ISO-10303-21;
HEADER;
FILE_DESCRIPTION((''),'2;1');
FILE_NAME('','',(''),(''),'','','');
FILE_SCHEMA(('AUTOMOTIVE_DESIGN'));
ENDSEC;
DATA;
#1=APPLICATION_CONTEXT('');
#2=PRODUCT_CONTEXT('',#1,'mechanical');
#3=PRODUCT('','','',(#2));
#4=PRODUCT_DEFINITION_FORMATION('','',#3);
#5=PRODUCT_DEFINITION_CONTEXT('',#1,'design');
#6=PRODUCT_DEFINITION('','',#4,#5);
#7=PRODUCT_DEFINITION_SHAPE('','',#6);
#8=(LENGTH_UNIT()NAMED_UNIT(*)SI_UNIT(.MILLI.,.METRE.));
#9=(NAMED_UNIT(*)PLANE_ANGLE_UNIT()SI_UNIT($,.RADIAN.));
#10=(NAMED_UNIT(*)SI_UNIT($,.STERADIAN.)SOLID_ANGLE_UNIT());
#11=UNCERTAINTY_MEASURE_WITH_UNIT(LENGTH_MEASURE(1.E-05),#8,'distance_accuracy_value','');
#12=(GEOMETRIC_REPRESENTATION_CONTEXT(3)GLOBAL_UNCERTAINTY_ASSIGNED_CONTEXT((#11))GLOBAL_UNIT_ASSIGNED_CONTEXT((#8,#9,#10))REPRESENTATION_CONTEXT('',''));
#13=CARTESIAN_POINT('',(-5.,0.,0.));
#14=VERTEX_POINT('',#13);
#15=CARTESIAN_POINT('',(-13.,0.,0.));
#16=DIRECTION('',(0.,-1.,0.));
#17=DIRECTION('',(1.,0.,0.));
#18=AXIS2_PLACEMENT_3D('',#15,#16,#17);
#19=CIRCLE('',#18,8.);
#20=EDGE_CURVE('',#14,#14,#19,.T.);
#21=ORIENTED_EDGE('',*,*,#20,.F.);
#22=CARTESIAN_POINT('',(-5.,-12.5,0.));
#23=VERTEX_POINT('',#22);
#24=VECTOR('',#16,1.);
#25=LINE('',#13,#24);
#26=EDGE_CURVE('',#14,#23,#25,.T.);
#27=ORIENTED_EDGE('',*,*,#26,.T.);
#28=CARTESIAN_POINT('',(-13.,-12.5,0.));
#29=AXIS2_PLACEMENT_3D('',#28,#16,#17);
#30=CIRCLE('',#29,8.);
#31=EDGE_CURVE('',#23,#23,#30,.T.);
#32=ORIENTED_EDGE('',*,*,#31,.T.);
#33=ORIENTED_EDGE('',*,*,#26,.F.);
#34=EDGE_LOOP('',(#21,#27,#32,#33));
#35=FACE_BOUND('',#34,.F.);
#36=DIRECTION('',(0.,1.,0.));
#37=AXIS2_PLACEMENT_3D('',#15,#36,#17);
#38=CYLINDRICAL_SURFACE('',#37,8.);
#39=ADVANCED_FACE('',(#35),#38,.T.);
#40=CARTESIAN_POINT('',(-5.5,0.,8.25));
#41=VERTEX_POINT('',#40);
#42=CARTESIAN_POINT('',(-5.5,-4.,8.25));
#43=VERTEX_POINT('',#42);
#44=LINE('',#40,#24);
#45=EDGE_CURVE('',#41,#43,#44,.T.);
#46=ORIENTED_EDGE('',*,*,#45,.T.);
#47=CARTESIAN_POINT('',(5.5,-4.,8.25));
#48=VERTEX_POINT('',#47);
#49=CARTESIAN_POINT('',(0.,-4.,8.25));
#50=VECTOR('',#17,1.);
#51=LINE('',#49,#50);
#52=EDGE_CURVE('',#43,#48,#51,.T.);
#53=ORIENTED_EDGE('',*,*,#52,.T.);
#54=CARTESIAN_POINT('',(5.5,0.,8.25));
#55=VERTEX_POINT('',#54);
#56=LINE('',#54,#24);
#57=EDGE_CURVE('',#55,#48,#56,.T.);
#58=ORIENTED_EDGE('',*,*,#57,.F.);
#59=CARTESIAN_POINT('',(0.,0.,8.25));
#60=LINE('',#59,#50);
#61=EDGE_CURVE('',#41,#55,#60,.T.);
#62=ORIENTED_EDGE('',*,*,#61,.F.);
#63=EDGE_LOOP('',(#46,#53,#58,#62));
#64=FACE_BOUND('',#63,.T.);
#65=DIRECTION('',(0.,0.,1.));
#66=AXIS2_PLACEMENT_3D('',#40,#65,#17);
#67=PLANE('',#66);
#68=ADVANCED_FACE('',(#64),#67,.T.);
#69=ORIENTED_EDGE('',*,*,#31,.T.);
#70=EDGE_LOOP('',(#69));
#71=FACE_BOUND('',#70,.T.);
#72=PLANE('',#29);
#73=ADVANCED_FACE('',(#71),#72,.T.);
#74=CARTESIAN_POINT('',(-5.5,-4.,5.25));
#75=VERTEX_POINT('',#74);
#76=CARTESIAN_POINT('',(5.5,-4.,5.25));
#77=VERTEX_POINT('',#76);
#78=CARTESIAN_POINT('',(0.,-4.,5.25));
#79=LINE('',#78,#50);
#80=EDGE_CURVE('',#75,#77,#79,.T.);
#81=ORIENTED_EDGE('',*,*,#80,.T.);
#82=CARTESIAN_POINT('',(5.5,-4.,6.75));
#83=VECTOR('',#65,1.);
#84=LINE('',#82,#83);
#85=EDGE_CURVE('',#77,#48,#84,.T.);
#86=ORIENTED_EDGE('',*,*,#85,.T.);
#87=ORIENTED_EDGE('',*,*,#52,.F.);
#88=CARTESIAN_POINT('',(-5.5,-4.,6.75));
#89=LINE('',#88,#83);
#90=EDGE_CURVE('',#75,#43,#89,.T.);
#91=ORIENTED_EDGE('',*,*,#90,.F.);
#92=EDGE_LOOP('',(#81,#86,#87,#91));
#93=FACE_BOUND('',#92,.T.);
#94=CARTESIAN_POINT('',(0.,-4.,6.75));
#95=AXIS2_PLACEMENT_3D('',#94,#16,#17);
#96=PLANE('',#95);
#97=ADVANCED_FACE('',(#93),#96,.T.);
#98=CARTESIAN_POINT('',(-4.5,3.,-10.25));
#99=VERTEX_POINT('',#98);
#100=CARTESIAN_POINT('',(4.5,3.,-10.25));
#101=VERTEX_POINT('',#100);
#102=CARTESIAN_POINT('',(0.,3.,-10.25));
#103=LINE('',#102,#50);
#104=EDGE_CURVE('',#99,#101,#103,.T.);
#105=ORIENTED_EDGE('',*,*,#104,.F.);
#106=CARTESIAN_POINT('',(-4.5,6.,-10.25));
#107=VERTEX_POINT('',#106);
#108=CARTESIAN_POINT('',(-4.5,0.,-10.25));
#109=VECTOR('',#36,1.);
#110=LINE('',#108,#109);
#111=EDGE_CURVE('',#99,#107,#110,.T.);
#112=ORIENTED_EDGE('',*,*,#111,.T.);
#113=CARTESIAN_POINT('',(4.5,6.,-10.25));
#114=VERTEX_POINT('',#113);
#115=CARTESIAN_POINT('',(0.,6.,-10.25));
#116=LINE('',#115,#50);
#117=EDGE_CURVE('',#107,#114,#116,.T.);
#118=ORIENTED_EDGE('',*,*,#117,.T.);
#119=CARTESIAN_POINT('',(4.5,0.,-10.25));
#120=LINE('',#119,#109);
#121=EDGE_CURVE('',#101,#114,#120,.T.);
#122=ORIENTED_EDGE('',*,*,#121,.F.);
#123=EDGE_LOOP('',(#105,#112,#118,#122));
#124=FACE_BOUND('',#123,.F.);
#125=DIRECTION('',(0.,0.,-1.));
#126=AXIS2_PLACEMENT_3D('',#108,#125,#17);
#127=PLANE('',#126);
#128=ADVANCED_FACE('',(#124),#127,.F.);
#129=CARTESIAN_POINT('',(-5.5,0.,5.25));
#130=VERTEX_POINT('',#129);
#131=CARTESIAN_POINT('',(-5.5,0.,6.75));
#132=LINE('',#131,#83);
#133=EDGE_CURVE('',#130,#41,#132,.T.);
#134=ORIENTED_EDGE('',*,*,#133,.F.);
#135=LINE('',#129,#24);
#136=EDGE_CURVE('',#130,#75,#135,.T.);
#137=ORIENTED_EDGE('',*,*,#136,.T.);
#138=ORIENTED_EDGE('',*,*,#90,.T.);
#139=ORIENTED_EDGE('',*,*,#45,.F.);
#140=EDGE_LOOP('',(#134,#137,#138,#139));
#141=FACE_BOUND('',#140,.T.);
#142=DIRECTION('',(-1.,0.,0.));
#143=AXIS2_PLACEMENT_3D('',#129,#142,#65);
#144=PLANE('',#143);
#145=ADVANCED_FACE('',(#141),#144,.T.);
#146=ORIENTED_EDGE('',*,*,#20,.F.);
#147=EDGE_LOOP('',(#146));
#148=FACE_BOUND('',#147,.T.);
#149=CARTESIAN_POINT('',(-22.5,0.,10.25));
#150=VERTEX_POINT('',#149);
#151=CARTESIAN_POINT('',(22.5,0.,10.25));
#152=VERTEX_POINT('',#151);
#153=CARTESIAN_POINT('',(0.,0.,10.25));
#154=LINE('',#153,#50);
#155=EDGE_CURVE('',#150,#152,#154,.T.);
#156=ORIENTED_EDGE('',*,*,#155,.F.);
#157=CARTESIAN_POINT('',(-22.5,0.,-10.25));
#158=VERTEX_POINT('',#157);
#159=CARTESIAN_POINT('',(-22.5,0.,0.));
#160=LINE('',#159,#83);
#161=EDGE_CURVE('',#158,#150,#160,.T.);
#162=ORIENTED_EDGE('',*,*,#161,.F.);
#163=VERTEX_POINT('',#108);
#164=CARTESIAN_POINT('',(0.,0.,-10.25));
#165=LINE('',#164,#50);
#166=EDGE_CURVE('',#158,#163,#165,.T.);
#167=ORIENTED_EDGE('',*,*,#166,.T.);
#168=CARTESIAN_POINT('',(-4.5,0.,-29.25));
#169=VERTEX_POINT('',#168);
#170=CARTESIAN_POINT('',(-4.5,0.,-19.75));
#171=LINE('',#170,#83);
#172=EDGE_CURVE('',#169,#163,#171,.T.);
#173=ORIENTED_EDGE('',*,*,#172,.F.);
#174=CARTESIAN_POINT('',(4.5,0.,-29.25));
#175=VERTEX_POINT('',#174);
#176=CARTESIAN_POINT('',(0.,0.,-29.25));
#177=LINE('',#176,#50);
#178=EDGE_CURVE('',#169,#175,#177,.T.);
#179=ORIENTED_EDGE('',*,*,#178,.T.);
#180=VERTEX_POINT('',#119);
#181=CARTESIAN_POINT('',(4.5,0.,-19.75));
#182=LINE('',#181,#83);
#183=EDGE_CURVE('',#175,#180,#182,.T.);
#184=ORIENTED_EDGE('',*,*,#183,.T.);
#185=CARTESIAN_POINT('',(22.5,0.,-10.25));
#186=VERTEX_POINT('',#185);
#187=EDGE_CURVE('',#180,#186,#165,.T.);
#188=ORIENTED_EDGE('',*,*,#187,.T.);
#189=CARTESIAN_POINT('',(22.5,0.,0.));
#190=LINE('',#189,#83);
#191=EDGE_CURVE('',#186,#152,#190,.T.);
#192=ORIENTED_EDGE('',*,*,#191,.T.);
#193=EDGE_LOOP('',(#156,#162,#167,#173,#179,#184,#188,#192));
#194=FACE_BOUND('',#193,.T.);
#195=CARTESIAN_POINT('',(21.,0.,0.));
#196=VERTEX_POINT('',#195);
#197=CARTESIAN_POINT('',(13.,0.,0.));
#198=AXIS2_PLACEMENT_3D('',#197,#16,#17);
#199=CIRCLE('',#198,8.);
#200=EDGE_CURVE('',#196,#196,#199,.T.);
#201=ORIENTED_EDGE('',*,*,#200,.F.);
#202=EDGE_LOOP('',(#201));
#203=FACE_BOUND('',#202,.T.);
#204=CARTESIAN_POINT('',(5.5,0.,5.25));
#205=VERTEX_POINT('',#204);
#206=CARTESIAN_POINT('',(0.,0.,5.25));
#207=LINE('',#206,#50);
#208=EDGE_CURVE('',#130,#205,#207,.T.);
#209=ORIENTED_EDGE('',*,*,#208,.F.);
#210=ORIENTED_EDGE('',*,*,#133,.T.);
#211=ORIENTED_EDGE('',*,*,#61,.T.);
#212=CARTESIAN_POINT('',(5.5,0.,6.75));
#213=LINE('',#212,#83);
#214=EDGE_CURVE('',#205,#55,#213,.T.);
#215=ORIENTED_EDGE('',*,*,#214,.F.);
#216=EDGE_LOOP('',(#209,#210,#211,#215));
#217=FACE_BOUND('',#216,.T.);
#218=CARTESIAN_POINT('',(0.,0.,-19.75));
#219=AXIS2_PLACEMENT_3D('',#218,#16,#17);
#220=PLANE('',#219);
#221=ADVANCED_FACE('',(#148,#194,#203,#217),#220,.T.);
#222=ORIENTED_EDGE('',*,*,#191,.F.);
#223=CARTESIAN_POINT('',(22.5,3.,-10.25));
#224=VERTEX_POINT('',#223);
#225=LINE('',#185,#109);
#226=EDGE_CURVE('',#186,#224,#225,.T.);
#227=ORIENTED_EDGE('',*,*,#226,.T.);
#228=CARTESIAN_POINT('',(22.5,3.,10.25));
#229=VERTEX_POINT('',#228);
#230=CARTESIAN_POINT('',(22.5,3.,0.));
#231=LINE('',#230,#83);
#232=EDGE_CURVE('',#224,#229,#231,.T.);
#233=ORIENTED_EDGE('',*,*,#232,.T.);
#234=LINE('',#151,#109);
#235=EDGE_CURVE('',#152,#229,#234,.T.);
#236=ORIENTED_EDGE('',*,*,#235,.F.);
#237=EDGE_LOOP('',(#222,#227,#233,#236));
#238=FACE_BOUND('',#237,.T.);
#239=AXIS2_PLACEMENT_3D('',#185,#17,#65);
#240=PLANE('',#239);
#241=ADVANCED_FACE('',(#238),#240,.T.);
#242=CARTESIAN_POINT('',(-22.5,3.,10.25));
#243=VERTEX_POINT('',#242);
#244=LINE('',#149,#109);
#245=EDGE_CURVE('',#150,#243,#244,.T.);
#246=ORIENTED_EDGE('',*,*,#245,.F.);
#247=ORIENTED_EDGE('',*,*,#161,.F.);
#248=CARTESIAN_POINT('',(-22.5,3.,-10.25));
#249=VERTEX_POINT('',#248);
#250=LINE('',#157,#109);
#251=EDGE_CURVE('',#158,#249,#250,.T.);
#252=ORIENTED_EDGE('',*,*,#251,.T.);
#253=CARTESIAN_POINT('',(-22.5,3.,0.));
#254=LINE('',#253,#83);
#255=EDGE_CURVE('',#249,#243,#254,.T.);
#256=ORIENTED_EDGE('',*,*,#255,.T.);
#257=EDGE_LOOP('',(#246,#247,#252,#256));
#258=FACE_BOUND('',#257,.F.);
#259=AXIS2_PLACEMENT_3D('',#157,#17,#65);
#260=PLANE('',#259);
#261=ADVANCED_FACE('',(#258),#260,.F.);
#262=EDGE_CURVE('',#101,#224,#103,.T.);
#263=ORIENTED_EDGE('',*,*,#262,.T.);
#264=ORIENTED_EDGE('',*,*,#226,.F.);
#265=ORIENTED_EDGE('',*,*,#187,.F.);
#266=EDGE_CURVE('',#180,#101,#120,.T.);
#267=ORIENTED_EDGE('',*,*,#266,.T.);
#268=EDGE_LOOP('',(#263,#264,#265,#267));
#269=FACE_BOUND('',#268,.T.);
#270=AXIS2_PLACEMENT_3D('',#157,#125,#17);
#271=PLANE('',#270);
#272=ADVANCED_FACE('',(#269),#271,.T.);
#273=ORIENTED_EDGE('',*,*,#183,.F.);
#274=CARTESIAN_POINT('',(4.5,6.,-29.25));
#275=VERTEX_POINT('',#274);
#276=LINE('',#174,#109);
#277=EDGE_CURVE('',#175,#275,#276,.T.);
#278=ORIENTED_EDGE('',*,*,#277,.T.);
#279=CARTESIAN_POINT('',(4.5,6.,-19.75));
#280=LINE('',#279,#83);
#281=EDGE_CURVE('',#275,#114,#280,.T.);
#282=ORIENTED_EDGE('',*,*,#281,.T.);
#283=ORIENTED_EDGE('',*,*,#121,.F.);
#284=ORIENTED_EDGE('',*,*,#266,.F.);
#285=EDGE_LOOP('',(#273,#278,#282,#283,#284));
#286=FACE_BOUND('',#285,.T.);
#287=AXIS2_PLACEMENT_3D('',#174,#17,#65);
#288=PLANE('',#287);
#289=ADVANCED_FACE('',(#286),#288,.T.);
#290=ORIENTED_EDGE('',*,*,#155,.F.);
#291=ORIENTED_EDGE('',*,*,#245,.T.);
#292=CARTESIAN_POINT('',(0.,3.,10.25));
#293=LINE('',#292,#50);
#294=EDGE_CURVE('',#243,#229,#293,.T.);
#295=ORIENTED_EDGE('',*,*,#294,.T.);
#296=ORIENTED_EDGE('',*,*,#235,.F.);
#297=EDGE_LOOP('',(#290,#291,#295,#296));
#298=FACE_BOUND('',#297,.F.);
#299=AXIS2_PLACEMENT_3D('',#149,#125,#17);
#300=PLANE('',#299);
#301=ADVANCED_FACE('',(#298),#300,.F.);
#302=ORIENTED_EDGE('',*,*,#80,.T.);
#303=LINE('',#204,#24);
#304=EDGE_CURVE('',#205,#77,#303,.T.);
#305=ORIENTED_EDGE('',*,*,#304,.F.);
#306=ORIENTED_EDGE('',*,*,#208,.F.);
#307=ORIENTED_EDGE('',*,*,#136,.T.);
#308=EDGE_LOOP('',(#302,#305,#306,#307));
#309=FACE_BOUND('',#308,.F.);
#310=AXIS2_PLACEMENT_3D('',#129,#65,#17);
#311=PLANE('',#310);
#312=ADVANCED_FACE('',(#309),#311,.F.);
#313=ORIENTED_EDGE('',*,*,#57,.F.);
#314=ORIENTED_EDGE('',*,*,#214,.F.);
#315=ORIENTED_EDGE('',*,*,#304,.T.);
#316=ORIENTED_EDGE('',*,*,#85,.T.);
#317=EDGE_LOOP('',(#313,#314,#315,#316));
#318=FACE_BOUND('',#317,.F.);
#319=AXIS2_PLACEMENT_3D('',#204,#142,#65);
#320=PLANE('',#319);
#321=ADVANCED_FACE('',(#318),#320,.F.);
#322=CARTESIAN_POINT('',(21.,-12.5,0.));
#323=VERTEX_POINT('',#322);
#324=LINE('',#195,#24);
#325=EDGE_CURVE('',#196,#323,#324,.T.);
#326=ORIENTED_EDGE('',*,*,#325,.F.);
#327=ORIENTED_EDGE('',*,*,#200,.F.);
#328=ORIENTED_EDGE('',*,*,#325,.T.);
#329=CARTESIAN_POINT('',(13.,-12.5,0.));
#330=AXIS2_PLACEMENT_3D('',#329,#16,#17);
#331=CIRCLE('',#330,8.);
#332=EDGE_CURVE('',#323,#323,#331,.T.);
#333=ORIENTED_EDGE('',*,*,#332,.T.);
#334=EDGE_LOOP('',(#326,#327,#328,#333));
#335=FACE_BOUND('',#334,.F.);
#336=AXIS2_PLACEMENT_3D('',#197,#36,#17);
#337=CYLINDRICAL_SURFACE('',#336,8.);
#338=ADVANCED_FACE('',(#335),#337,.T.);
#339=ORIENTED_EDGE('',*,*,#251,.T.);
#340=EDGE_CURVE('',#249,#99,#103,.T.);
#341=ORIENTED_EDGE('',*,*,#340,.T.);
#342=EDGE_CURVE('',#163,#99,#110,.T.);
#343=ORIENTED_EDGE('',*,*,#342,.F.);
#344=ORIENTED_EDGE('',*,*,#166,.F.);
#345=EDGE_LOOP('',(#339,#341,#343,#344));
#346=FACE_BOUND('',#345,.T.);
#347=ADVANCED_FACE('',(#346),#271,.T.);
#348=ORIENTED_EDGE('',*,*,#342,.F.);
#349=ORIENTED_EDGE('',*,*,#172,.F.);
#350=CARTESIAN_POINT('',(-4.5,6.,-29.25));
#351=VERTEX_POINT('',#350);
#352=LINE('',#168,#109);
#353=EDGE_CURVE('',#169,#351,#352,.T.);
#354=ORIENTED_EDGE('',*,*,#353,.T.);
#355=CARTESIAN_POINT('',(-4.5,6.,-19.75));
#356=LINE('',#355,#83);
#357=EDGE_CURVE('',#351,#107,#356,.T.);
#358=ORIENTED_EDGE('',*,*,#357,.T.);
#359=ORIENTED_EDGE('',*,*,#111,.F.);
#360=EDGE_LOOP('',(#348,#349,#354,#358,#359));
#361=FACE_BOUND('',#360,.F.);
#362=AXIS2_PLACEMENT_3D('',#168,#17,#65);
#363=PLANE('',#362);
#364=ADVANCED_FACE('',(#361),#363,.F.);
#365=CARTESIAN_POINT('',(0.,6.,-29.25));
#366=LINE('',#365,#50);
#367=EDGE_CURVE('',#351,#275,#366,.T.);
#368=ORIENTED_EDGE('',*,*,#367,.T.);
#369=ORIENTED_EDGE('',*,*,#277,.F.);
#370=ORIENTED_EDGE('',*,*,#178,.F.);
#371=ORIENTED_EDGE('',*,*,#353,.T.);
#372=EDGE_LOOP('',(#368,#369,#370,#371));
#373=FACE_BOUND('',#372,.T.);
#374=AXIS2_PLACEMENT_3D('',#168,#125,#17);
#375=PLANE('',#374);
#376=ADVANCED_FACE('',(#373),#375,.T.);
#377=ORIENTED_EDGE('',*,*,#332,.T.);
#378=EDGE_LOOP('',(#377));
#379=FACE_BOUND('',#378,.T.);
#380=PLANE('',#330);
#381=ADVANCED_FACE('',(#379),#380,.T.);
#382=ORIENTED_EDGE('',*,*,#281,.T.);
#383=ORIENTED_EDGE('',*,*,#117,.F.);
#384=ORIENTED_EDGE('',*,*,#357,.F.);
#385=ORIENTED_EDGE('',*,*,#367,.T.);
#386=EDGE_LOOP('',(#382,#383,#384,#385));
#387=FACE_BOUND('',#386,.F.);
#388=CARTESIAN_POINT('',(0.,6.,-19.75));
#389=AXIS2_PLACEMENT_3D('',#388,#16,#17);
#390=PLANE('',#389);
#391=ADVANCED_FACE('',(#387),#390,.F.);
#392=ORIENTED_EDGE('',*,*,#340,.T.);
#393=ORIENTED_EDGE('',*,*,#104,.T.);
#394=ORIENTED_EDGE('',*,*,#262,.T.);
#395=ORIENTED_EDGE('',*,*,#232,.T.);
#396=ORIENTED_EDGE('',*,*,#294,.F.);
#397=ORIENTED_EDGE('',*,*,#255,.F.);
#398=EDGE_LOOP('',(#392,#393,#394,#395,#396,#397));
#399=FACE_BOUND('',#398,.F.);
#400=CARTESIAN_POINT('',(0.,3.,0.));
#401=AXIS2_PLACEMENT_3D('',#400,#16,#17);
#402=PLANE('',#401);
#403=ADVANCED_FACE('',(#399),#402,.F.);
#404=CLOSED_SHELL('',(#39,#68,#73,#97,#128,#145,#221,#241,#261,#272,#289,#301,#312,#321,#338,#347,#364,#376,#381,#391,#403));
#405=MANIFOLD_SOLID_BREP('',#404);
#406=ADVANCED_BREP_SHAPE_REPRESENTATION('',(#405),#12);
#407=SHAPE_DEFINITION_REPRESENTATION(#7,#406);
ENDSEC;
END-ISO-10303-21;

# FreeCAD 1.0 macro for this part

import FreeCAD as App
import Part
import Sketcher

V = App.Vector
Q = App.Units.Quantity


def add_polygon(sketch, points):
    """Adds a closed chain of lines whose ends are joined by coincident constraints."""
    first, n = sketch.GeometryCount, len(points)
    for a, b in zip(points, points[1:] + points[:1]):
        sketch.addGeometry(Part.LineSegment(App.Vector(*a, 0), App.Vector(*b, 0)), False)
    for i in range(n):
        sketch.addConstraint(Sketcher.Constraint("Coincident", first + i, 2, first + (i + 1) % n, 1))

doc = App.newDocument("Part")
body = doc.addObject("PartDesign::Body", "Body")

sketch1 = body.newObject("Sketcher::SketchObject", "Sketch")
sketch1.AttachmentSupport = (doc.getObject("XZ_Plane"), [""])
sketch1.MapMode = "FlatFace"
add_polygon(sketch1, [(-22, 10), (-22, -10), (22, -10), (22, 10)])
sketch1.addConstraint([
    Sketcher.Constraint("Vertical", 0),
    Sketcher.Constraint("Horizontal", 1),
    Sketcher.Constraint("Vertical", 2),
    Sketcher.Constraint("Horizontal", 3),
    Sketcher.Constraint("Symmetric", 0, 2, 2, 2, -1, 1),
    Sketcher.Constraint("DistanceX", 1, 1, 1, 2, Q("45 mm")),
    Sketcher.Constraint("DistanceY", 0, 2, 0, 1, Q("20.5 mm")),
])
pad1 = body.newObject("PartDesign::Pad", "Pad")
pad1.Profile = sketch1
pad1.Length = 3
pad1.Reversed = True

sketch2 = body.newObject("Sketcher::SketchObject", "Sketch001")
sketch2.AttachmentSupport = (doc.getObject("XZ_Plane"), [""])
sketch2.MapMode = "FlatFace"
sketch2.addGeometry([
    Part.Circle(V(-13, 0, 0), V(0, 0, 1), 8),
    Part.Circle(V(13, 0, 0), V(0, 0, 1), 8),
], False)
sketch2.addConstraint([
    Sketcher.Constraint("Equal", 0, 1),
    Sketcher.Constraint("Symmetric", 0, 3, 1, 3, -1, 1),
    Sketcher.Constraint("PointOnObject", 0, 3, -1),
    Sketcher.Constraint("Diameter", 0, Q("16 mm")),
    Sketcher.Constraint("DistanceX", 0, 3, -1, 1, Q("13 mm")),
])
pad2 = body.newObject("PartDesign::Pad", "Pad001")
pad2.Profile = sketch2
pad2.Length = 12.5

sketch3 = body.newObject("Sketcher::SketchObject", "Sketch002")
sketch3.AttachmentSupport = (doc.getObject("XZ_Plane"), [""])
sketch3.MapMode = "FlatFace"
add_polygon(sketch3, [(-5.5, 8.2), (-5.5, 5.2), (5.5, 5.2), (5.5, 8.2)])
sketch3.addConstraint([
    Sketcher.Constraint("Vertical", 0),
    Sketcher.Constraint("Horizontal", 1),
    Sketcher.Constraint("Vertical", 2),
    Sketcher.Constraint("Horizontal", 3),
    Sketcher.Constraint("DistanceX", 1, 1, 1, 2, Q("11 mm")),
    Sketcher.Constraint("DistanceY", 0, 2, 0, 1, Q("3 mm")),
    Sketcher.Constraint("DistanceX", 0, 2, -1, 1, Q("5.5 mm")),
    Sketcher.Constraint("DistanceY", -1, 1, 0, 2, Q("5.25 mm")),
])
pad3 = body.newObject("PartDesign::Pad", "Pad002")
pad3.Profile = sketch3
pad3.Length = 4

sketch4 = body.newObject("Sketcher::SketchObject", "Sketch003")
sketch4.AttachmentSupport = (doc.getObject("XZ_Plane"), [""])
sketch4.MapMode = "FlatFace"
add_polygon(sketch4, [(-4, -10), (-4, -29), (4, -29), (4, -10)])
sketch4.addConstraint([
    Sketcher.Constraint("Vertical", 0),
    Sketcher.Constraint("Horizontal", 1),
    Sketcher.Constraint("Vertical", 2),
    Sketcher.Constraint("Horizontal", 3),
    Sketcher.Constraint("DistanceX", 1, 1, 1, 2, Q("9 mm")),
    Sketcher.Constraint("DistanceY", 0, 2, 0, 1, Q("19 mm")),
    Sketcher.Constraint("DistanceX", 0, 2, -1, 1, Q("4.5 mm")),
    Sketcher.Constraint("DistanceY", 0, 2, -1, 1, Q("29.25 mm")),
])
pad4 = body.newObject("PartDesign::Pad", "Pad003")
pad4.Profile = sketch4
pad4.Length = 6
pad4.Reversed = True

doc.recompute()
